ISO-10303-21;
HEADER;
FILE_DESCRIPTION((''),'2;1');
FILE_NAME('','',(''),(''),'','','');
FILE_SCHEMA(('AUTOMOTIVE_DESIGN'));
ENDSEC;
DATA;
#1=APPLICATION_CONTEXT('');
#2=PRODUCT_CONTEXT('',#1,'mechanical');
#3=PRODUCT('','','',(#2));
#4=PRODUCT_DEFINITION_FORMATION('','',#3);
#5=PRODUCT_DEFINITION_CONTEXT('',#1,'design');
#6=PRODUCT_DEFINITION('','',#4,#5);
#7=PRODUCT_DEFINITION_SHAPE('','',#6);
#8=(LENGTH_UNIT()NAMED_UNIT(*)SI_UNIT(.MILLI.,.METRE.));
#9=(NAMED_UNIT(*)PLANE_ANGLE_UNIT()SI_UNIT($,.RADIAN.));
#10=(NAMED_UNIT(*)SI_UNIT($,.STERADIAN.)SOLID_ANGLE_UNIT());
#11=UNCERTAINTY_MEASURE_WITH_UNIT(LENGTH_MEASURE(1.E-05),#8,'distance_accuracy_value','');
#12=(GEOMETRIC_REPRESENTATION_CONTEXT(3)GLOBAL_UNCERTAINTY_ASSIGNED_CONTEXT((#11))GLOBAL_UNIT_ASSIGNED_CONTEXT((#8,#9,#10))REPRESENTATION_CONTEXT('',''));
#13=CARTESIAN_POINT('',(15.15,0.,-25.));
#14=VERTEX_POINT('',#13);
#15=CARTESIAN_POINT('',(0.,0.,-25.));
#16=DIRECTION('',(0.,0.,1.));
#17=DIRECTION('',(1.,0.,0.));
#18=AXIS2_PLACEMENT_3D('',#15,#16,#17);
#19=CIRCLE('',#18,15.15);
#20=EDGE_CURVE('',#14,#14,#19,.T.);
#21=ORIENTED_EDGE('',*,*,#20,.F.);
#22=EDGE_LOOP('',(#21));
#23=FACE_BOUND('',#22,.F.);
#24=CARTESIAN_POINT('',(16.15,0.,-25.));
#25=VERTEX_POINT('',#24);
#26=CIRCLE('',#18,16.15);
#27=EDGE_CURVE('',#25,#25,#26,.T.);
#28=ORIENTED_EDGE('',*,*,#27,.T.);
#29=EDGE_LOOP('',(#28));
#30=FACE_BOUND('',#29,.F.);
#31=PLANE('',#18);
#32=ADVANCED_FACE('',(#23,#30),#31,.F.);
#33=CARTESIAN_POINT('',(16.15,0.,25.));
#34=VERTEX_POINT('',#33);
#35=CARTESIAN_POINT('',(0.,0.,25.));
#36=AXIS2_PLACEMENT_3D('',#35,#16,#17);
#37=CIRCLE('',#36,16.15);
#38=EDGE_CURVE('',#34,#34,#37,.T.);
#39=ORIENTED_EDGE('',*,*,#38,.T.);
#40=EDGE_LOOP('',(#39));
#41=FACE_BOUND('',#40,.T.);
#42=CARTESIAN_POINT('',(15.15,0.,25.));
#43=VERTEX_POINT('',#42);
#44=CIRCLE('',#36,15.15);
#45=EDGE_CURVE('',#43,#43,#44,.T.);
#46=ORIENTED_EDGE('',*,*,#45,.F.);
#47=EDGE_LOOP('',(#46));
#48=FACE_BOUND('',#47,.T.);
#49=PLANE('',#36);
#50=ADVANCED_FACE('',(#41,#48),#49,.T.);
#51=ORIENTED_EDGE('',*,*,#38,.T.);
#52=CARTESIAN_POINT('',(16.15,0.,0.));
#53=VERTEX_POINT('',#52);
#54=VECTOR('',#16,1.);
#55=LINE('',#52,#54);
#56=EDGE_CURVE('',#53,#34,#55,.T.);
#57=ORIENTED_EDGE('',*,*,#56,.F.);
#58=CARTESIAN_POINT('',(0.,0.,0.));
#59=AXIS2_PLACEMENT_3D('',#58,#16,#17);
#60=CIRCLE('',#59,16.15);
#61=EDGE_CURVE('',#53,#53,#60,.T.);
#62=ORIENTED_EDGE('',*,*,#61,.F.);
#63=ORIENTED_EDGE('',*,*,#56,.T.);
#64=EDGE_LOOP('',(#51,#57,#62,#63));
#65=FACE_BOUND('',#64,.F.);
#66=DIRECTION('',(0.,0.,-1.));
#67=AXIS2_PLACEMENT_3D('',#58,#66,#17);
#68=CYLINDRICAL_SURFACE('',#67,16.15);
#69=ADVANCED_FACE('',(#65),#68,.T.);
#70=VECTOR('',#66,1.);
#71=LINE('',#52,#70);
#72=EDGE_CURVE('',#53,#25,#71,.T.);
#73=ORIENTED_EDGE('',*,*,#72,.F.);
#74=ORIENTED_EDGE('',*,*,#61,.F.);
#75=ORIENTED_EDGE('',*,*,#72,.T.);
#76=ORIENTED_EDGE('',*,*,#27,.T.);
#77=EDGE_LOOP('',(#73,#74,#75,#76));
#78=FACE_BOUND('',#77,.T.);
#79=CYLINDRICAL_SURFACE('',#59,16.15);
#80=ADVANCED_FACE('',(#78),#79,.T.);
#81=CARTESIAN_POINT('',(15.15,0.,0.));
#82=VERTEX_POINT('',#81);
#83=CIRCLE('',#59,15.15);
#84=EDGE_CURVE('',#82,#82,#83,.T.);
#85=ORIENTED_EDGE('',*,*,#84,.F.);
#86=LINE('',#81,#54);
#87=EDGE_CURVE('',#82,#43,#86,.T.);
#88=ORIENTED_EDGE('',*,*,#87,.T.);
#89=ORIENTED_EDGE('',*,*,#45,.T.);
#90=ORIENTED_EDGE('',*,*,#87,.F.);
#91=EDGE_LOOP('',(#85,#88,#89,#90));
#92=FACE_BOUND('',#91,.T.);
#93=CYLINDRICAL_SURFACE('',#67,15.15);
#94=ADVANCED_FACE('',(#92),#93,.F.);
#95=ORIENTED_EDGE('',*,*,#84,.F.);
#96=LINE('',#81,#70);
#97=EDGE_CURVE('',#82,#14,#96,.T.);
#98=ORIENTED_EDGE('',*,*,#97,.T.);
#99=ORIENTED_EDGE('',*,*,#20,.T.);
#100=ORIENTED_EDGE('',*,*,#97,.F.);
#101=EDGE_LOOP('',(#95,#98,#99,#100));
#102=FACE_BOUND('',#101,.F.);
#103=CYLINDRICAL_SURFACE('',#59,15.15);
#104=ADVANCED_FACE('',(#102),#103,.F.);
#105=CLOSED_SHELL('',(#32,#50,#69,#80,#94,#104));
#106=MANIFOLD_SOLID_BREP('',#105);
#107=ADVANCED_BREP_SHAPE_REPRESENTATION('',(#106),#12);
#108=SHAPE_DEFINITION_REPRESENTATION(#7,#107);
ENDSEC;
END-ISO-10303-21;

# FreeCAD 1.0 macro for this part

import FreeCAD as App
import Part
import Sketcher
Q = App.Units.Quantity

doc = App.newDocument("Part")
body = doc.addObject("PartDesign::Body", "Body")

# Sketch on XY plane
sketch1 = doc.addObject("Sketcher::SketchObject", "Sketch")
body.addObject(sketch1)
sketch1.AttachmentSupport = (doc.XY_Plane, [""])
sketch1.MapMode = "FlatFace"
sketch1.addGeometry([
    Part.Circle(App.Vector(0, 0, 0), App.Vector(0, 0, 1), 16),
    Part.Circle(App.Vector(0, 0, 0), App.Vector(0, 0, 1), 15),
], False)
sketch1.addConstraint([
    Sketcher.Constraint("Coincident", 0, 3, -1, 1),
    Sketcher.Constraint("Coincident", 1, 3, -1, 1),
    Sketcher.Constraint("Diameter", 0, Q("32.3 mm")),
    Sketcher.Constraint("Diameter", 1, Q("30.3 mm")),
])
pad1 = doc.addObject("PartDesign::Pad", "Pad")
body.addObject(pad1)
pad1.Profile = sketch1
pad1.Length = 50
pad1.Midplane = True

doc.recompute()
